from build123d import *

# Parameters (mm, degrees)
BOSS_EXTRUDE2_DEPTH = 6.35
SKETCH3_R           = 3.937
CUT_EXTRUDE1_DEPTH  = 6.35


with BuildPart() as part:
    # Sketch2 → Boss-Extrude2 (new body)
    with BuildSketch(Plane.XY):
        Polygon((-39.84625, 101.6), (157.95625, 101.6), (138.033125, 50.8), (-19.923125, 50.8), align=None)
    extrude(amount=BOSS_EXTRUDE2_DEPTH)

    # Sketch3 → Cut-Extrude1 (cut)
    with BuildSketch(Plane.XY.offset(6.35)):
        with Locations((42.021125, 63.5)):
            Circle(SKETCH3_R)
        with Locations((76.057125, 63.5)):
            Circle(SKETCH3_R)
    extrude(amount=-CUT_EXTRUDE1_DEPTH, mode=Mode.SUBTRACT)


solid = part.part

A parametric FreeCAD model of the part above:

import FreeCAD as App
import Part
import Sketcher

V = App.Vector
Q = App.Units.Quantity


def add_polygon(sketch, points):
    """Adds a closed chain of lines whose ends are joined by coincident constraints."""
    first, n = sketch.GeometryCount, len(points)
    for a, b in zip(points, points[1:] + points[:1]):
        sketch.addGeometry(Part.LineSegment(App.Vector(*a, 0), App.Vector(*b, 0)), False)
    for i in range(n):
        sketch.addConstraint(Sketcher.Constraint("Coincident", first + i, 2, first + (i + 1) % n, 1))

doc = App.newDocument("Part")
body = doc.addObject("PartDesign::Body", "Body")

# Sketch on XY plane
sketch1 = doc.addObject("Sketcher::SketchObject", "Sketch")
body.addObject(sketch1)
sketch1.AttachmentSupport = (doc.XY_Plane, [""])
sketch1.MapMode = "FlatFace"
add_polygon(sketch1, [(157.95625, 101.6), (-39.84625, 101.6), (-19.923125, 50.8), (138.033125, 50.8)])  # lines 0-3
sketch1.addConstraint(Sketcher.Constraint("Horizontal", 0))
sketch1.addConstraint(Sketcher.Constraint("Horizontal", 2))
sketch1.addConstraint(Sketcher.Constraint("Equal", 1, 3))
sketch1.addConstraint(Sketcher.Constraint("DistanceY", -1, 1, 0, 2, Q("4 in")))
sketch1.addConstraint(Sketcher.Constraint("DistanceY", -1, 1, 1, 2, Q("2 in")))
sketch1.addConstraint(Sketcher.Constraint("DistanceX", 2, 1, 2, 2, Q("6.21875 in")))
sketch1.addConstraint(Sketcher.Constraint("DistanceX", 0, 2, 0, 1, Q("7.7875 in")))
sketch1.addConstraint(Sketcher.Constraint("DistanceX", -1, 1, 3, 2, Q("6.21875 in")))
pad1 = doc.addObject("PartDesign::Pad", "Pad")
body.addObject(pad1)
pad1.Profile = sketch1
pad1.Length = Q("0.25 in")

# Sketch on XY plane
sketch2 = doc.addObject("Sketcher::SketchObject", "Sketch001")
body.addObject(sketch2)
sketch2.AttachmentSupport = (doc.XY_Plane, [""])
sketch2.MapMode = "FlatFace"
sketch2.AttachmentOffset = App.Placement(V(0, 0, 0.25 * 25.4), App.Rotation())
sketch2.addGeometry(Part.Circle(V(42.021125, 63.5, 0), V(0, 0, 1), 3.937), False)
sketch2.addGeometry(Part.Circle(V(76.057125, 63.5, 0), V(0, 0, 1), 3.937), False)
sketch2.addConstraint(Sketcher.Constraint("Equal", 0, 1))
sketch2.addConstraint(Sketcher.Constraint("Horizontal", 0, 3, 1, 3))
sketch2.addConstraint(Sketcher.Constraint("Diameter", 0, Q("0.31 in")))
sketch2.addConstraint(Sketcher.Constraint("DistanceY", -1, 1, 0, 3, Q("2.5 in")))
sketch2.addConstraint(Sketcher.Constraint("DistanceX", 0, 3, 1, 3, Q("1.34 in")))
sketch2.addConstraint(Sketcher.Constraint("DistanceX", -1, 1, 0, 3, 42.021125))
pocket1 = doc.addObject("PartDesign::Pocket", "Pocket")
body.addObject(pocket1)
pocket1.Profile = sketch2
pocket1.Length = Q("0.25 in")

doc.recompute()
